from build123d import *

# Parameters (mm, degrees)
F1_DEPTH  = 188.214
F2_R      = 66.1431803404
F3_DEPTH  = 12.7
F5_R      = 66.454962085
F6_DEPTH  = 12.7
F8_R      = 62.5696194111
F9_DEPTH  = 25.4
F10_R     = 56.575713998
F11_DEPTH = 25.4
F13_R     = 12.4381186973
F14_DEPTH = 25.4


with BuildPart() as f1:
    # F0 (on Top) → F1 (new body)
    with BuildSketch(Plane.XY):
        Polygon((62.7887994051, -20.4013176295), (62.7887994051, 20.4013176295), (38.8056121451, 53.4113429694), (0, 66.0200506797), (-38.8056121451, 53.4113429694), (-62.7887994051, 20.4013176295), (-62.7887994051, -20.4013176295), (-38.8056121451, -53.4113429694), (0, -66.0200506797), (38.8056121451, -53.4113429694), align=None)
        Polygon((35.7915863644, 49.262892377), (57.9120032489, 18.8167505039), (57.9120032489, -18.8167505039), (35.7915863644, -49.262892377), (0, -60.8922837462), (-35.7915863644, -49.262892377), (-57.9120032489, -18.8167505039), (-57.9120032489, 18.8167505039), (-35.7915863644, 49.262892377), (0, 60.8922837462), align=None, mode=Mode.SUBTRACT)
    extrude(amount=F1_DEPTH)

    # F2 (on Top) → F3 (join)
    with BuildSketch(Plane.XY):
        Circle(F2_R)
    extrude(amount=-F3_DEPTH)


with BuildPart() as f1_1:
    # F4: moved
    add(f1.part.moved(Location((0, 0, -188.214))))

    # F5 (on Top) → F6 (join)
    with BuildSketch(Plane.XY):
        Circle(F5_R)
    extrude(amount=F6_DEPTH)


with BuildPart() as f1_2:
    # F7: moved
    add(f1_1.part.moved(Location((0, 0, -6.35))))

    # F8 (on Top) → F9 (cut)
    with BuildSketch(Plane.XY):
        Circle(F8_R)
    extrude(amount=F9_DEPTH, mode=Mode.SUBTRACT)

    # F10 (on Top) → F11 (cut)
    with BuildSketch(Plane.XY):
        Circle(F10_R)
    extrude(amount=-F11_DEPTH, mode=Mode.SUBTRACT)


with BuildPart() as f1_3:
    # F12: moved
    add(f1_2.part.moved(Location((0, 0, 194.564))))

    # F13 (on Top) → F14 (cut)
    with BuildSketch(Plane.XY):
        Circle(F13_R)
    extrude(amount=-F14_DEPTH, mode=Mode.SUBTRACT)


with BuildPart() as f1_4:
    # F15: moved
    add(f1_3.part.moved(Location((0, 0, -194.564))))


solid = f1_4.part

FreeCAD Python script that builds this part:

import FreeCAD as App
import Part
import Sketcher

V = App.Vector
Q = App.Units.Quantity

doc = App.newDocument("Part")
body = doc.addObject("PartDesign::Body", "Body")

# Sketch on XY plane
sketch1 = body.newObject("Sketcher::SketchObject", "Sketch")
sketch1.AttachmentSupport = (doc.getObject("XY_Plane"), [""])
sketch1.MapMode = "FlatFace"
sketch1.addGeometry(Part.LineSegment(V(63, -20, 0), V(63, 20, 0)), False)
sketch1.addGeometry(Part.LineSegment(V(63, 20, 0), V(39, 53, 0)), False)
sketch1.addGeometry(Part.LineSegment(V(39, 53, 0), V(0, 66, 0)), False)
sketch1.addGeometry(Part.LineSegment(V(0, 66, 0), V(-39, 53, 0)), False)
sketch1.addGeometry(Part.LineSegment(V(-39, 53, 0), V(-63, 20, 0)), False)
sketch1.addGeometry(Part.LineSegment(V(-63, 20, 0), V(-63, -20, 0)), False)
sketch1.addGeometry(Part.LineSegment(V(-63, -20, 0), V(-39, -53, 0)), False)
sketch1.addGeometry(Part.LineSegment(V(-39, -53, 0), V(0, -66, 0)), False)
sketch1.addGeometry(Part.LineSegment(V(0, -66, 0), V(39, -53, 0)), False)
sketch1.addGeometry(Part.LineSegment(V(39, -53, 0), V(63, -20, 0)), False)
sketch1.addGeometry(Part.LineSegment(V(0, 61, 0), V(36, 49, 0)), False)
sketch1.addGeometry(Part.LineSegment(V(36, 49, 0), V(58, 19, 0)), False)
sketch1.addGeometry(Part.LineSegment(V(58, 19, 0), V(58, -19, 0)), False)
sketch1.addGeometry(Part.LineSegment(V(58, -19, 0), V(36, -49, 0)), False)
sketch1.addGeometry(Part.LineSegment(V(36, -49, 0), V(0, -61, 0)), False)
sketch1.addGeometry(Part.LineSegment(V(0, -61, 0), V(-36, -49, 0)), False)
sketch1.addGeometry(Part.LineSegment(V(-36, -49, 0), V(-58, -19, 0)), False)
sketch1.addGeometry(Part.LineSegment(V(-58, -19, 0), V(-58, 19, 0)), False)
sketch1.addGeometry(Part.LineSegment(V(-58, 19, 0), V(-36, 49, 0)), False)
sketch1.addGeometry(Part.LineSegment(V(-36, 49, 0), V(0, 61, 0)), False)
sketch1.addConstraint(Sketcher.Constraint("Coincident", 0, 2, 1, 1))
sketch1.addConstraint(Sketcher.Constraint("Coincident", 1, 2, 2, 1))
sketch1.addConstraint(Sketcher.Constraint("Coincident", 2, 2, 3, 1))
sketch1.addConstraint(Sketcher.Constraint("Coincident", 3, 2, 4, 1))
sketch1.addConstraint(Sketcher.Constraint("Coincident", 4, 2, 5, 1))
sketch1.addConstraint(Sketcher.Constraint("Coincident", 5, 2, 6, 1))
sketch1.addConstraint(Sketcher.Constraint("Coincident", 6, 2, 7, 1))
sketch1.addConstraint(Sketcher.Constraint("Coincident", 7, 2, 8, 1))
sketch1.addConstraint(Sketcher.Constraint("Coincident", 8, 2, 9, 1))
sketch1.addConstraint(Sketcher.Constraint("Coincident", 9, 2, 0, 1))
sketch1.addConstraint(Sketcher.Constraint("Coincident", 10, 2, 11, 1))
sketch1.addConstraint(Sketcher.Constraint("Coincident", 11, 2, 12, 1))
sketch1.addConstraint(Sketcher.Constraint("Coincident", 12, 2, 13, 1))
sketch1.addConstraint(Sketcher.Constraint("Coincident", 13, 2, 14, 1))
sketch1.addConstraint(Sketcher.Constraint("Coincident", 14, 2, 15, 1))
sketch1.addConstraint(Sketcher.Constraint("Coincident", 15, 2, 16, 1))
sketch1.addConstraint(Sketcher.Constraint("Coincident", 16, 2, 17, 1))
sketch1.addConstraint(Sketcher.Constraint("Coincident", 17, 2, 18, 1))
sketch1.addConstraint(Sketcher.Constraint("Coincident", 18, 2, 19, 1))
sketch1.addConstraint(Sketcher.Constraint("Coincident", 19, 2, 10, 1))
sketch1.addConstraint(Sketcher.Constraint("Vertical", 0))
sketch1.addConstraint(Sketcher.Constraint("Vertical", 5))
sketch1.addConstraint(Sketcher.Constraint("Vertical", 12))
sketch1.addConstraint(Sketcher.Constraint("Vertical", 17))
sketch1.addConstraint(Sketcher.Constraint("Symmetric", 0, 2, 5, 2, -1, 1))
sketch1.addConstraint(Sketcher.Constraint("Symmetric", 1, 2, 6, 2, -1, 1))
sketch1.addConstraint(Sketcher.Constraint("Symmetric", 2, 2, 7, 2, -1, 1))
sketch1.addConstraint(Sketcher.Constraint("Symmetric", 3, 2, 8, 2, -1, 1))
sketch1.addConstraint(Sketcher.Constraint("Symmetric", 10, 2, 15, 2, -1, 1))
sketch1.addConstraint(Sketcher.Constraint("Symmetric", 11, 2, 16, 2, -1, 1))
sketch1.addConstraint(Sketcher.Constraint("Symmetric", 13, 2, 18, 2, -1, 1))
sketch1.addConstraint(Sketcher.Constraint("Symmetric", 14, 2, 19, 2, -1, 1))
sketch1.addConstraint(Sketcher.Constraint("Symmetric", 1, 2, 3, 2, -2))
sketch1.addConstraint(Sketcher.Constraint("Symmetric", 13, 2, 15, 2, -2))
sketch1.addConstraint(Sketcher.Constraint("PointOnObject", 2, 2, -2))
sketch1.addConstraint(Sketcher.Constraint("PointOnObject", 14, 2, -2))
sketch1.addConstraint(Sketcher.Constraint("Parallel", 4, 9))
sketch1.addConstraint(Sketcher.Constraint("Parallel", 7, 10))
sketch1.addConstraint(Sketcher.Constraint("Parallel", 6, 11))
sketch1.addConstraint(Sketcher.Constraint("Parallel", 9, 13))
sketch1.addConstraint(Sketcher.Constraint("Parallel", 13, 18))
sketch1.addConstraint(Sketcher.Constraint("Horizontal", 0, 2, 4, 2))
sketch1.addConstraint(Sketcher.Constraint("Equal", 1, 2))
sketch1.addConstraint(Sketcher.Constraint("Equal", 10, 11))
sketch1.addConstraint(Sketcher.Constraint("Angle", 1, Q("126 deg")))
sketch1.addConstraint(Sketcher.Constraint("Angle", 2, Q("162 deg")))
sketch1.addConstraint(Sketcher.Constraint("DistanceX", -1, 1, 11, 2, Q("2.2800001 in")))
sketch1.addConstraint(Sketcher.Constraint("DistanceX", -1, 1, 0, 2, Q("2.472 in")))
sketch1.addConstraint(Sketcher.Constraint("DistanceY", 12, 2, 12, 1, 37.633501))
sketch1.addConstraint(Sketcher.Constraint("DistanceY", 0, 1, 0, 2, 40.802635))
pad1 = body.newObject("PartDesign::Pad", "Pad")
pad1.Profile = sketch1
pad1.Length = Q("7.41 in")

# Sketch on XY plane
sketch2 = body.newObject("Sketcher::SketchObject", "Sketch001")
sketch2.AttachmentSupport = (doc.getObject("XY_Plane"), [""])
sketch2.MapMode = "FlatFace"
sketch2.addGeometry(Part.Circle(V(0, 0, 0), V(0, 0, 1), 66), False)
sketch2.addConstraint(Sketcher.Constraint("Coincident", 0, 3, -1, 1))
sketch2.addConstraint(Sketcher.Constraint("Diameter", 0, 132.286361))
pad2 = body.newObject("PartDesign::Pad", "Pad001")
pad2.Profile = sketch2
pad2.Length = Q("0.5 in")
pad2.Reversed = True
body2 = doc.addObject("PartDesign::Body", "Body001")
doc.recompute()

body.Placement = App.Placement(V(0, 0, -188.214), App.Rotation(V(0, 0, 1), 0))
boolean = body2.newObject("PartDesign::Boolean", "Boolean")
boolean.Type = "Fuse"
boolean.addObjects([body])

# Sketch on XY plane
sketch3 = body2.newObject("Sketcher::SketchObject", "Sketch002")
sketch3.AttachmentSupport = (doc.getObject("XY_Plane001"), [""])
sketch3.MapMode = "FlatFace"
sketch3.addGeometry(Part.Circle(V(0, 0, 0), V(0, 0, 1), 66), False)
sketch3.addConstraint(Sketcher.Constraint("Coincident", 0, 3, -1, 1))
sketch3.addConstraint(Sketcher.Constraint("Diameter", 0, 132.909924))
pad3 = body2.newObject("PartDesign::Pad", "Pad002")
pad3.Profile = sketch3
pad3.Length = Q("0.5 in")
body3 = doc.addObject("PartDesign::Body", "Body002")
doc.recompute()

body2.Placement = App.Placement(V(0, 0, -6.35), App.Rotation(V(0, 0, 1), 0))
boolean2 = body3.newObject("PartDesign::Boolean", "Boolean001")
boolean2.Type = "Fuse"
boolean2.addObjects([body2])

# Sketch on XY plane
sketch4 = body3.newObject("Sketcher::SketchObject", "Sketch003")
sketch4.AttachmentSupport = (doc.getObject("XY_Plane002"), [""])
sketch4.MapMode = "FlatFace"
sketch4.addGeometry(Part.Circle(V(0, 0, 0), V(0, 0, 1), 63), False)
sketch4.addConstraint(Sketcher.Constraint("Coincident", 0, 3, -1, 1))
sketch4.addConstraint(Sketcher.Constraint("Diameter", 0, 125.139239))
pocket1 = body3.newObject("PartDesign::Pocket", "Pocket")
pocket1.Profile = sketch4
pocket1.Length = Q("1 in")
pocket1.Reversed = True

# Sketch on XY plane
sketch5 = body3.newObject("Sketcher::SketchObject", "Sketch004")
sketch5.AttachmentSupport = (doc.getObject("XY_Plane002"), [""])
sketch5.MapMode = "FlatFace"
sketch5.addGeometry(Part.Circle(V(0, 0, 0), V(0, 0, 1), 57), False)
sketch5.addConstraint(Sketcher.Constraint("Coincident", 0, 3, -1, 1))
sketch5.addConstraint(Sketcher.Constraint("Diameter", 0, 113.151428))
pocket2 = body3.newObject("PartDesign::Pocket", "Pocket001")
pocket2.Profile = sketch5
pocket2.Length = Q("1 in")
body4 = doc.addObject("PartDesign::Body", "Body003")
doc.recompute()

body3.Placement = App.Placement(V(0, 0, 194.564), App.Rotation(V(0, 0, 1), 0))
boolean3 = body4.newObject("PartDesign::Boolean", "Boolean002")
boolean3.Type = "Fuse"
boolean3.addObjects([body3])

# Sketch on XY plane
sketch6 = body4.newObject("Sketcher::SketchObject", "Sketch005")
sketch6.AttachmentSupport = (doc.getObject("XY_Plane003"), [""])
sketch6.MapMode = "FlatFace"
sketch6.addGeometry(Part.Circle(V(0, 0, 0), V(0, 0, 1), 12), False)
sketch6.addConstraint(Sketcher.Constraint("Coincident", 0, 3, -1, 1))
sketch6.addConstraint(Sketcher.Constraint("Diameter", 0, 24.876237))
pocket3 = body4.newObject("PartDesign::Pocket", "Pocket002")
pocket3.Profile = sketch6
pocket3.Length = Q("1 in")
body5 = doc.addObject("PartDesign::Body", "Body004")
doc.recompute()

body4.Placement = App.Placement(V(0, 0, -194.564), App.Rotation(V(0, 0, 1), 0))
boolean4 = body5.newObject("PartDesign::Boolean", "Boolean003")
boolean4.Type = "Fuse"
boolean4.addObjects([body4])

doc.recompute()
